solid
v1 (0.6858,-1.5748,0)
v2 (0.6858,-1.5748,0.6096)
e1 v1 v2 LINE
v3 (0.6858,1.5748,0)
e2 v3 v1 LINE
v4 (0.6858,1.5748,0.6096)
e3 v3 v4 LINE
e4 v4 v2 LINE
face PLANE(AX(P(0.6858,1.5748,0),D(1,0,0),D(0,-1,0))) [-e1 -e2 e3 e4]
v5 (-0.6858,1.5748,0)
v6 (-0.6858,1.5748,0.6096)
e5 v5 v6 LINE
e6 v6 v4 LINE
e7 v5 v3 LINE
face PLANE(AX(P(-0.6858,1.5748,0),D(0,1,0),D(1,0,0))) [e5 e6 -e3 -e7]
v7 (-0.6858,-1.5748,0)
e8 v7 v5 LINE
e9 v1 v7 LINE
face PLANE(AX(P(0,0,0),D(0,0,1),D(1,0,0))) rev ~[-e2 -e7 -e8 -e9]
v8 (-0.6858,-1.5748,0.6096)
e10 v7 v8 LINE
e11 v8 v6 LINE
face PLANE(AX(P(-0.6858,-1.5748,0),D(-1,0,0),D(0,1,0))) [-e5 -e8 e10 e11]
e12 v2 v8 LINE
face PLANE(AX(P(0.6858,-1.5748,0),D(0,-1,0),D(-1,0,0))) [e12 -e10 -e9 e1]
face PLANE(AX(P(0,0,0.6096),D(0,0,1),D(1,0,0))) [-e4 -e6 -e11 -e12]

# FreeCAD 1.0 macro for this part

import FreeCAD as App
import Part
import Sketcher
from FreeCAD import Vector
Q = App.Units.Quantity


def add_polygon(sketch, points):
    """Adds a closed chain of lines whose ends are joined by coincident constraints."""
    first, n = sketch.GeometryCount, len(points)
    for a, b in zip(points, points[1:] + points[:1]):
        sketch.addGeometry(Part.LineSegment(App.Vector(*a, 0), App.Vector(*b, 0)), False)
    for i in range(n):
        sketch.addConstraint(Sketcher.Constraint("Coincident", first + i, 2, first + (i + 1) % n, 1))

doc = App.newDocument("Part")
params = doc.addObject("Spreadsheet::Sheet", "Params")
for row, (alias, value) in enumerate([
    ("sketch1_width", "0.054 in"),
    ("sketch1_height", "0.124 in"),
    ("pad1_length", "0.024 in"),
], start=1):
    params.set(f"A{row}", alias)
    params.set(f"B{row}", "=" + value)
    params.setAlias(f"B{row}", alias)

body = doc.addObject("PartDesign::Body", "Body")

sketch1 = body.newObject("Sketcher::SketchObject", "Sketch")
sketch1.AttachmentSupport = (doc.getObject("XY_Plane"), [""])
sketch1.MapMode = "FlatFace"
add_polygon(sketch1, [(0.7, 1.6), (-0.7, 1.6), (-0.7, -1.6), (0.7, -1.6)])
sketch1.addConstraint([
    Sketcher.Constraint("Horizontal", 0),
    Sketcher.Constraint("Vertical", 1),
    Sketcher.Constraint("Horizontal", 2),
    Sketcher.Constraint("Vertical", 3),
    Sketcher.Constraint("Symmetric", 0, 2, 2, 2, -1, 1),
    Sketcher.Constraint("DistanceX", 0, 2, 0, 1, Q("0.054 in")),
    Sketcher.Constraint("DistanceY", 1, 2, 1, 1, Q("0.124 in")),
])
sketch1.setExpression("Constraints[9]", "Params.sketch1_width")
sketch1.setExpression("Constraints[10]", "Params.sketch1_height")
pad1 = body.newObject("PartDesign::Pad", "Pad")
pad1.Profile = sketch1
pad1.setExpression("Length", "Params.pad1_length")

doc.recompute()
